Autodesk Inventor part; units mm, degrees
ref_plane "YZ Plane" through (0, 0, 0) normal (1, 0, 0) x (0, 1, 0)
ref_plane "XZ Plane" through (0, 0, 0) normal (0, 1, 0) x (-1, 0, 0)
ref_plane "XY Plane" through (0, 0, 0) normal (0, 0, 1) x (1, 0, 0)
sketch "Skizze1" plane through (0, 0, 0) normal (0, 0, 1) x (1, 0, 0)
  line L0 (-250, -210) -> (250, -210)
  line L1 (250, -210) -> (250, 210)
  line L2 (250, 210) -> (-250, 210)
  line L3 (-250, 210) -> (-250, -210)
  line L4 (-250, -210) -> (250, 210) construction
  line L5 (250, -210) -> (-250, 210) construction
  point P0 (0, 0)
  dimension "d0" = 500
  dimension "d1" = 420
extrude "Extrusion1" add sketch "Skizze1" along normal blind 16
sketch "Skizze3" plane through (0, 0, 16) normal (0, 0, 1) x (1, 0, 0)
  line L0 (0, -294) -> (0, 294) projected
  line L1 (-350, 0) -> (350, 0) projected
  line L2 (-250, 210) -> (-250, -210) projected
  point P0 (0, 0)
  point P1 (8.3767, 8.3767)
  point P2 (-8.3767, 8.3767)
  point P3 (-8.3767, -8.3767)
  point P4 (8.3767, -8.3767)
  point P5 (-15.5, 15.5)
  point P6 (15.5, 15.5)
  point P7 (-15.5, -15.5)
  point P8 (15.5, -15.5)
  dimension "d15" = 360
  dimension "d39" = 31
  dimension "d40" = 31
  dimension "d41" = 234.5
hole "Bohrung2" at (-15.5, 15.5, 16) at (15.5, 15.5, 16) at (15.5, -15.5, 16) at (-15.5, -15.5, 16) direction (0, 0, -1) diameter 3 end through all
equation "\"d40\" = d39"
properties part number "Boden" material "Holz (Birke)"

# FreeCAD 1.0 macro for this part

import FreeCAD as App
import Part
import Sketcher

doc = App.newDocument("Part")
body = doc.addObject("PartDesign::Body", "Body")

sketch1 = body.newObject("Sketcher::SketchObject", "Sketch")
sketch1.AttachmentSupport = (doc.getObject("XY_Plane"), [""])
sketch1.MapMode = "FlatFace"
sketch1.addGeometry(Part.LineSegment(App.Vector(-250, 210, 0), App.Vector(-250, -210, 0)), False)
sketch1.addGeometry(Part.LineSegment(App.Vector(-250, -210, 0), App.Vector(250, -210, 0)), False)
sketch1.addGeometry(Part.LineSegment(App.Vector(250, -210, 0), App.Vector(250, 210, 0)), False)
sketch1.addGeometry(Part.LineSegment(App.Vector(250, 210, 0), App.Vector(-250, 210, 0)), False)
sketch1.addConstraint(Sketcher.Constraint("Coincident", 0, 2, 1, 1))
sketch1.addConstraint(Sketcher.Constraint("Coincident", 1, 2, 2, 1))
sketch1.addConstraint(Sketcher.Constraint("Coincident", 2, 2, 3, 1))
sketch1.addConstraint(Sketcher.Constraint("Coincident", 3, 2, 0, 1))
sketch1.addConstraint(Sketcher.Constraint("Vertical", 0))
sketch1.addConstraint(Sketcher.Constraint("Horizontal", 1))
sketch1.addConstraint(Sketcher.Constraint("Vertical", 2))
sketch1.addConstraint(Sketcher.Constraint("Horizontal", 3))
sketch1.addConstraint(Sketcher.Constraint("Symmetric", 0, 2, 2, 2, -1, 1))
sketch1.addConstraint(Sketcher.Constraint("DistanceX", 1, 1, 1, 2, 500.0))
sketch1.addConstraint(Sketcher.Constraint("DistanceY", 0, 2, 0, 1, 420.0))
pad1 = body.newObject("PartDesign::Pad", "Pad")
pad1.Profile = sketch1
pad1.Length = 16

sketch2 = body.newObject("Sketcher::SketchObject", "Sketch001")
sketch2.AttachmentSupport = (doc.getObject("XY_Plane"), [""])
sketch2.MapMode = "FlatFace"
sketch2.AttachmentOffset = App.Placement(App.Vector(0, 0, 16), App.Rotation())
sketch2.addGeometry(Part.Circle(App.Vector(-15.5, 15.5, 0), App.Vector(0, 0, 1), 1.5), False)
sketch2.addGeometry(Part.Circle(App.Vector(15.5, 15.5, 0), App.Vector(0, 0, 1), 1.5), False)
sketch2.addGeometry(Part.Circle(App.Vector(15.5, -15.5, 0), App.Vector(0, 0, 1), 1.5), False)
sketch2.addGeometry(Part.Circle(App.Vector(-15.5, -15.5, 0), App.Vector(0, 0, 1), 1.5), False)
sketch2.addConstraint(Sketcher.Constraint("Equal", 0, 1))
sketch2.addConstraint(Sketcher.Constraint("Equal", 1, 2))
sketch2.addConstraint(Sketcher.Constraint("Equal", 2, 3))
sketch2.addConstraint(Sketcher.Constraint("Symmetric", 0, 3, 2, 3, -1, 1))
sketch2.addConstraint(Sketcher.Constraint("Symmetric", 1, 3, 3, 3, -1, 1))
sketch2.addConstraint(Sketcher.Constraint("Symmetric", 0, 3, 1, 3, -2))
sketch2.addConstraint(Sketcher.Constraint("Diameter", 0, 3.0))
sketch2.addConstraint(Sketcher.Constraint("DistanceX", 0, 3, 1, 3, 31.0))
sketch2.addConstraint(Sketcher.Constraint("DistanceY", 2, 3, 1, 3, 31.0))
doc.recompute()
hole = body.newObject("PartDesign::Hole", "Hole")
hole.Profile = sketch2
hole.ThreadType = "None"
hole.Diameter = 3
hole.DepthType = "ThroughAll"

doc.recompute()
